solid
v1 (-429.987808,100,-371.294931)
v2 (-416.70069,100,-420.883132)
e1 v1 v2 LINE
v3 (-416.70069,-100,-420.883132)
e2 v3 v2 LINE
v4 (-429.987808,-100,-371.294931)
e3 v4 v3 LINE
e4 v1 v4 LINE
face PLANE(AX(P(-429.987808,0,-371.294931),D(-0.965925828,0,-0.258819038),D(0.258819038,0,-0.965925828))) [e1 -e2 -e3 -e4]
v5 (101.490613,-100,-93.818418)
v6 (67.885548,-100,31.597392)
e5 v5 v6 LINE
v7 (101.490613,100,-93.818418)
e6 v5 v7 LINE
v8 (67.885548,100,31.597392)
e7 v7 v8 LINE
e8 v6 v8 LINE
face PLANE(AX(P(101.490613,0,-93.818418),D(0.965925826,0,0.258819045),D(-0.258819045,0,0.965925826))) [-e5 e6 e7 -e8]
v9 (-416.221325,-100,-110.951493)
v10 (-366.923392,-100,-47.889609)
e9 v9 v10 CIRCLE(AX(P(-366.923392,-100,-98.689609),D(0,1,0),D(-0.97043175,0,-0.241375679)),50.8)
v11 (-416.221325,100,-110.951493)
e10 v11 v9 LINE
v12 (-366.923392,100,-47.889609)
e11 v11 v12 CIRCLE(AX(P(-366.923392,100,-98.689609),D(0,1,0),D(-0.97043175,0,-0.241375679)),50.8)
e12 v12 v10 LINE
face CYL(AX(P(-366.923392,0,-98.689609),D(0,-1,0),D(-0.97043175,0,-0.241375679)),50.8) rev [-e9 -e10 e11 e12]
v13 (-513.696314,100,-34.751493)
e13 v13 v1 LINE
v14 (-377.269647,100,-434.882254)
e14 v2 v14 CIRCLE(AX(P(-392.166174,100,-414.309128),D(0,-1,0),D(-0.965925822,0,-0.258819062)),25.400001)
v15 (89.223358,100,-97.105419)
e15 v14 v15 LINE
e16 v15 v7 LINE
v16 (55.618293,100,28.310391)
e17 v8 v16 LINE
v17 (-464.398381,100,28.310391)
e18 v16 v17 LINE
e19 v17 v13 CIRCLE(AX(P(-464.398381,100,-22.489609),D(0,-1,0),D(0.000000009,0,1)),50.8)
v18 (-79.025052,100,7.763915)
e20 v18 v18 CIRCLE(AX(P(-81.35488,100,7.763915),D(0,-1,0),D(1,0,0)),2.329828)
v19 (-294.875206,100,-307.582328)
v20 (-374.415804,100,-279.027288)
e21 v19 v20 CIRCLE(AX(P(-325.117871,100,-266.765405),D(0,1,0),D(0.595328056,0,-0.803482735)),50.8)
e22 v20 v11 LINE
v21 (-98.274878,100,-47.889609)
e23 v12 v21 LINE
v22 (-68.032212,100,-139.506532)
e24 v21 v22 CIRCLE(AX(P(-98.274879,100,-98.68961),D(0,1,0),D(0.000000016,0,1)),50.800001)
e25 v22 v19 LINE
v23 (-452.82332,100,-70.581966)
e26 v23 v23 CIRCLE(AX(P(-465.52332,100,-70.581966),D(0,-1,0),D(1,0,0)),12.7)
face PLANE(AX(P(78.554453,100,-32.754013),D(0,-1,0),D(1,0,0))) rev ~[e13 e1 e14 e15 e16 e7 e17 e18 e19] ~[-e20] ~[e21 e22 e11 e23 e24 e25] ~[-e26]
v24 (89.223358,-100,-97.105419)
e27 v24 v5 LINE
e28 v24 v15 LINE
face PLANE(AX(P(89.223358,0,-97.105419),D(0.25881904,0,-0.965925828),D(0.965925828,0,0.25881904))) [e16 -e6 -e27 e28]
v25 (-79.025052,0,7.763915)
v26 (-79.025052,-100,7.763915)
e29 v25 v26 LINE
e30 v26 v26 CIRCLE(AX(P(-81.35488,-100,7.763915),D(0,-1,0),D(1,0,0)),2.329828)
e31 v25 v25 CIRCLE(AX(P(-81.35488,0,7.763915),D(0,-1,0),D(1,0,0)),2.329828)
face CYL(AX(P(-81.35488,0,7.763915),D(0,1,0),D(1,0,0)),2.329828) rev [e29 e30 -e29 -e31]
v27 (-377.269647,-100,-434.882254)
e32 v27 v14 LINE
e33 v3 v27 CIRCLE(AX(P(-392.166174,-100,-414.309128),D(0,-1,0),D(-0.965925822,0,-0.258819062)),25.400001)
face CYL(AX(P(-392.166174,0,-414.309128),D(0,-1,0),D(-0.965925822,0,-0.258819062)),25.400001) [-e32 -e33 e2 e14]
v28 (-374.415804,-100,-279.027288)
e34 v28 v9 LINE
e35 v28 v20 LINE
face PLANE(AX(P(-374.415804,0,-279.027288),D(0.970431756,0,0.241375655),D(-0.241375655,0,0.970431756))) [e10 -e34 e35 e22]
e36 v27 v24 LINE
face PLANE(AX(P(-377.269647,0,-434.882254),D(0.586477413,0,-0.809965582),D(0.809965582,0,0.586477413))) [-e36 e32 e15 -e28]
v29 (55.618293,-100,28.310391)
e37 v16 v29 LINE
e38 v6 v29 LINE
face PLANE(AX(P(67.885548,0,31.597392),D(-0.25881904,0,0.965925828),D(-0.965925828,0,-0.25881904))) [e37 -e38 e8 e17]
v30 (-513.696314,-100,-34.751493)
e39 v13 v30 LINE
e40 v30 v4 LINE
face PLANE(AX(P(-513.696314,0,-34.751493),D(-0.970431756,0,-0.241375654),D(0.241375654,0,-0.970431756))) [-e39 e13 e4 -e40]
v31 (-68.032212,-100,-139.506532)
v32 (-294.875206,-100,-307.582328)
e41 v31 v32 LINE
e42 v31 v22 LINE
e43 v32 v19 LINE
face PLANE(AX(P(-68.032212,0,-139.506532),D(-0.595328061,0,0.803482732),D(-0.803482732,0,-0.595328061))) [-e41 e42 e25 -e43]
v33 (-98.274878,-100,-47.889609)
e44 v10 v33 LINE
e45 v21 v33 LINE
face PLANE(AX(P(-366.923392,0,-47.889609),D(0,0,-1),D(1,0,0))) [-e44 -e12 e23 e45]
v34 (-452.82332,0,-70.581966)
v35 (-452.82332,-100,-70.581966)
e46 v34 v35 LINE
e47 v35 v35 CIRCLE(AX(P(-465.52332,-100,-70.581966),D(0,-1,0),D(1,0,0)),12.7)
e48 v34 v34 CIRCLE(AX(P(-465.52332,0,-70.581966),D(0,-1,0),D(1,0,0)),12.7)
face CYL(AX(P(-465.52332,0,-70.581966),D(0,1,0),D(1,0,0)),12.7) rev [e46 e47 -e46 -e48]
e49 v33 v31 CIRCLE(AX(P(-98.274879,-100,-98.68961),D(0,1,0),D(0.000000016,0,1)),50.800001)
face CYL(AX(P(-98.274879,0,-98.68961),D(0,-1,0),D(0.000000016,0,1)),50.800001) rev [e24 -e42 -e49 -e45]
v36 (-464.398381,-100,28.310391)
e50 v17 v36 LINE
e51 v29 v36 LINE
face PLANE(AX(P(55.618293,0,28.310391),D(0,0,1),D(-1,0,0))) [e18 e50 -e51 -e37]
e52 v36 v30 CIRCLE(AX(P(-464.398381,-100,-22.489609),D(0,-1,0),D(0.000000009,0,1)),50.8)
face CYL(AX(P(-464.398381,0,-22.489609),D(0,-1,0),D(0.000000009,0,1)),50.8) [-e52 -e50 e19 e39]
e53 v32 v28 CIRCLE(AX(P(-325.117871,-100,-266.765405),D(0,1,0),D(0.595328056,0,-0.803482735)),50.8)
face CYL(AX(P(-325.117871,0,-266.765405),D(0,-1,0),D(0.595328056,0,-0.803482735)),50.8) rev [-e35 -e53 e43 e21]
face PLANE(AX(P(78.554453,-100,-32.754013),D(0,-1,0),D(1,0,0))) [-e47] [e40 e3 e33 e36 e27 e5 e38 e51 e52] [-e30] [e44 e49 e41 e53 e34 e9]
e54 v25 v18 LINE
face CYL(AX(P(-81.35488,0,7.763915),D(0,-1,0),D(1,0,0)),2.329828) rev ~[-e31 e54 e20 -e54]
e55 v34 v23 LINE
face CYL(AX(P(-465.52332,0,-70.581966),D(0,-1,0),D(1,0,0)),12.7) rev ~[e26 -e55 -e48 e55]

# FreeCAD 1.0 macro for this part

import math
import FreeCAD as App
import Part
import Sketcher
Q = App.Units.Quantity


def add_polygon(sketch, points):
    """Adds a closed chain of lines whose ends are joined by coincident constraints."""
    first, n = sketch.GeometryCount, len(points)
    for a, b in zip(points, points[1:] + points[:1]):
        sketch.addGeometry(Part.LineSegment(App.Vector(*a, 0), App.Vector(*b, 0)), False)
    for i in range(n):
        sketch.addConstraint(Sketcher.Constraint("Coincident", first + i, 2, first + (i + 1) % n, 1))

doc = App.newDocument("Part")
body = doc.addObject("PartDesign::Body", "Body")

# Sketch on XZ plane
sketch1 = body.newObject("Sketcher::SketchObject", "Sketch")
sketch1.AttachmentSupport = (doc.getObject("XZ_Plane"), [""])
sketch1.MapMode = "FlatFace"
sketch1.addGeometry([
    Part.LineSegment(App.Vector(55.618293, 28.310391, 0), App.Vector(-464.398381, 28.310391, 0)),  # 0
    Part.ArcOfCircle(Part.Circle(App.Vector(-464.398381, -22.489609, 0), App.Vector(0, 0, 1), 50.8), math.radians(89.999999), math.radians(193.967748)),  # 1
    Part.LineSegment(App.Vector(-513.696314, -34.751493, 0), App.Vector(-429.987808, -371.294931, 0)),  # 2
    Part.LineSegment(App.Vector(-429.987808, -371.294931, 0), App.Vector(-416.70069, -420.883132, 0)),  # 3
    Part.ArcOfCircle(Part.Circle(App.Vector(-392.166174, -414.309128, 0), App.Vector(0, 0, 1), 25.400001), math.radians(-164.999999), math.radians(-54.092569)),  # 4
    Part.LineSegment(App.Vector(-377.269647, -434.882254, 0), App.Vector(89.223358, -97.105419, 0)),  # 5
    Part.LineSegment(App.Vector(89.223358, -97.105419, 0), App.Vector(55.618293, 28.310391, 0)),  # 6
    Part.LineSegment(App.Vector(-374.415804, -279.027288, 0), App.Vector(-416.221325, -110.951493, 0)),  # 7
    Part.ArcOfCircle(Part.Circle(App.Vector(-366.923392, -98.689609, 0), App.Vector(0, 0, 1), 50.8), math.radians(89.999999), math.radians(193.967748)),  # 8
    Part.LineSegment(App.Vector(-366.923392, -47.889609, 0), App.Vector(-98.274878, -47.889609, 0)),  # 9
    Part.ArcOfCircle(Part.Circle(App.Vector(-98.274879, -98.68961, 0), App.Vector(0, 0, 1), 50.800001), math.radians(-53.463976), math.radians(89.999999)),  # 10
    Part.LineSegment(App.Vector(-68.032212, -139.506532, 0), App.Vector(-294.875206, -307.582328, 0)),  # 11
    Part.ArcOfCircle(Part.Circle(App.Vector(-325.117871, -266.765405, 0), App.Vector(0, 0, 1), 50.8), math.radians(-166.032254), math.radians(-53.463978)),  # 12
    Part.Circle(App.Vector(-465.52332, -70.581966, 0), App.Vector(0, 0, 1), 12.7),  # 13
    Part.Circle(App.Vector(-81.35488, 7.763915, 0), App.Vector(0, 0, 1), 2.329828),  # 14
], False)
sketch1.addConstraint([
    Sketcher.Constraint("Tangent", 0, 2, 1, 1),
    Sketcher.Constraint("Tangent", 1, 2, 2, 1),
    Sketcher.Constraint("Coincident", 2, 2, 3, 1),
    Sketcher.Constraint("Tangent", 3, 2, 4, 1),
    Sketcher.Constraint("Tangent", 4, 2, 5, 1),
    Sketcher.Constraint("Coincident", 5, 2, 6, 1),
    Sketcher.Constraint("Coincident", 6, 2, 0, 1),
    Sketcher.Constraint("Tangent", 7, 2, 8, 2),
    Sketcher.Constraint("Tangent", 8, 1, 9, 1),
    Sketcher.Constraint("Tangent", 9, 2, 10, 2),
    Sketcher.Constraint("Tangent", 10, 1, 11, 1),
    Sketcher.Constraint("Tangent", 11, 2, 12, 2),
    Sketcher.Constraint("Tangent", 12, 1, 7, 1),
    Sketcher.Constraint("Horizontal", 0),
    Sketcher.Constraint("Horizontal", 9),
    Sketcher.Constraint("Equal", 1, 8),
    Sketcher.Constraint("Equal", 8, 10),
    Sketcher.Constraint("Equal", 10, 12),
    Sketcher.Constraint("Parallel", 3, 6),
    Sketcher.Constraint("Parallel", 2, 7),
    Sketcher.Constraint("Diameter", 13, Q("1 in")),
    Sketcher.Constraint("Radius", 1, Q("2 in")),
    Sketcher.Constraint("Radius", 4, Q("1 in")),
    Sketcher.Constraint("Angle", 3, Q("-75 deg")),
    Sketcher.Constraint("DistanceY", 8, 3, 1, 3, Q("3 in")),
    Sketcher.Constraint("Diameter", 14, 4.659656),
    Sketcher.Constraint("DistanceY", 13, 3, 1, 3, Q("1.8933999 in")),
    Sketcher.Constraint("DistanceX", 13, 3, 10, 3, Q("14.4586 in")),
    Sketcher.Constraint("Distance", 6, 129.840001),
    Sketcher.Constraint("DistanceX", 10, 3, 14, 3, 16.919999),
    Sketcher.Constraint("DistanceX", 1, 3, 14, 3, 383.043501),
    Sketcher.Constraint("DistanceY", 3, 2, 2, 2, 49.588201),
    Sketcher.Constraint("DistanceY", 4, 3, 11, 2, 106.7268),
    Sketcher.Constraint("DistanceX", 2, 2, 11, 2, 135.112602),
    Sketcher.Constraint("DistanceX", 0, 2, 0, 1, 520.016674),
    Sketcher.Constraint("DistanceX", 9, 1, 9, 2, 268.648514),
    Sketcher.Constraint("DistanceX", 1, 3, -1, 1, 464.398381),
    Sketcher.Constraint("DistanceY", 1, 3, -1, 1, 22.489609),
    Sketcher.Constraint("DistanceX", 12, 3, -1, 1, 325.117871),
    Sketcher.Constraint("DistanceY", 12, 3, 14, 3, 274.52932),
])
pad1 = body.newObject("PartDesign::Pad", "Pad")
pad1.Profile = sketch1
pad1.Type = "TwoLengths"
pad1.Length = 100
pad1.Length2 = 100

# Sketch on XZ plane
sketch2 = body.newObject("Sketcher::SketchObject", "Sketch001")
sketch2.AttachmentSupport = (doc.getObject("XZ_Plane"), [""])
sketch2.MapMode = "FlatFace"
add_polygon(sketch2, [(67.885548, 31.597392), (55.618293, 28.310391), (89.223358, -97.105419), (101.490613, -93.818418)])  # lines 0-3
sketch2.addConstraint([
    Sketcher.Constraint("Perpendicular", 0, 1),
    Sketcher.Constraint("Perpendicular", 1, 2),
    Sketcher.Constraint("Perpendicular", 2, 3),
    Sketcher.Constraint("Angle", 0, Q("-165 deg")),
    Sketcher.Constraint("Distance", 0, Q("0.4999999 in")),
    Sketcher.Constraint("Distance", 1, 129.840001),
    Sketcher.Constraint("DistanceY", -1, 1, 0, 2, 28.310391),
    Sketcher.Constraint("DistanceX", -1, 1, 1, 2, 89.223358),
])
pad2 = body.newObject("PartDesign::Pad", "Pad001")
pad2.Profile = sketch2
pad2.Type = "TwoLengths"
pad2.Length = 100
pad2.Length2 = 100

doc.recompute()
